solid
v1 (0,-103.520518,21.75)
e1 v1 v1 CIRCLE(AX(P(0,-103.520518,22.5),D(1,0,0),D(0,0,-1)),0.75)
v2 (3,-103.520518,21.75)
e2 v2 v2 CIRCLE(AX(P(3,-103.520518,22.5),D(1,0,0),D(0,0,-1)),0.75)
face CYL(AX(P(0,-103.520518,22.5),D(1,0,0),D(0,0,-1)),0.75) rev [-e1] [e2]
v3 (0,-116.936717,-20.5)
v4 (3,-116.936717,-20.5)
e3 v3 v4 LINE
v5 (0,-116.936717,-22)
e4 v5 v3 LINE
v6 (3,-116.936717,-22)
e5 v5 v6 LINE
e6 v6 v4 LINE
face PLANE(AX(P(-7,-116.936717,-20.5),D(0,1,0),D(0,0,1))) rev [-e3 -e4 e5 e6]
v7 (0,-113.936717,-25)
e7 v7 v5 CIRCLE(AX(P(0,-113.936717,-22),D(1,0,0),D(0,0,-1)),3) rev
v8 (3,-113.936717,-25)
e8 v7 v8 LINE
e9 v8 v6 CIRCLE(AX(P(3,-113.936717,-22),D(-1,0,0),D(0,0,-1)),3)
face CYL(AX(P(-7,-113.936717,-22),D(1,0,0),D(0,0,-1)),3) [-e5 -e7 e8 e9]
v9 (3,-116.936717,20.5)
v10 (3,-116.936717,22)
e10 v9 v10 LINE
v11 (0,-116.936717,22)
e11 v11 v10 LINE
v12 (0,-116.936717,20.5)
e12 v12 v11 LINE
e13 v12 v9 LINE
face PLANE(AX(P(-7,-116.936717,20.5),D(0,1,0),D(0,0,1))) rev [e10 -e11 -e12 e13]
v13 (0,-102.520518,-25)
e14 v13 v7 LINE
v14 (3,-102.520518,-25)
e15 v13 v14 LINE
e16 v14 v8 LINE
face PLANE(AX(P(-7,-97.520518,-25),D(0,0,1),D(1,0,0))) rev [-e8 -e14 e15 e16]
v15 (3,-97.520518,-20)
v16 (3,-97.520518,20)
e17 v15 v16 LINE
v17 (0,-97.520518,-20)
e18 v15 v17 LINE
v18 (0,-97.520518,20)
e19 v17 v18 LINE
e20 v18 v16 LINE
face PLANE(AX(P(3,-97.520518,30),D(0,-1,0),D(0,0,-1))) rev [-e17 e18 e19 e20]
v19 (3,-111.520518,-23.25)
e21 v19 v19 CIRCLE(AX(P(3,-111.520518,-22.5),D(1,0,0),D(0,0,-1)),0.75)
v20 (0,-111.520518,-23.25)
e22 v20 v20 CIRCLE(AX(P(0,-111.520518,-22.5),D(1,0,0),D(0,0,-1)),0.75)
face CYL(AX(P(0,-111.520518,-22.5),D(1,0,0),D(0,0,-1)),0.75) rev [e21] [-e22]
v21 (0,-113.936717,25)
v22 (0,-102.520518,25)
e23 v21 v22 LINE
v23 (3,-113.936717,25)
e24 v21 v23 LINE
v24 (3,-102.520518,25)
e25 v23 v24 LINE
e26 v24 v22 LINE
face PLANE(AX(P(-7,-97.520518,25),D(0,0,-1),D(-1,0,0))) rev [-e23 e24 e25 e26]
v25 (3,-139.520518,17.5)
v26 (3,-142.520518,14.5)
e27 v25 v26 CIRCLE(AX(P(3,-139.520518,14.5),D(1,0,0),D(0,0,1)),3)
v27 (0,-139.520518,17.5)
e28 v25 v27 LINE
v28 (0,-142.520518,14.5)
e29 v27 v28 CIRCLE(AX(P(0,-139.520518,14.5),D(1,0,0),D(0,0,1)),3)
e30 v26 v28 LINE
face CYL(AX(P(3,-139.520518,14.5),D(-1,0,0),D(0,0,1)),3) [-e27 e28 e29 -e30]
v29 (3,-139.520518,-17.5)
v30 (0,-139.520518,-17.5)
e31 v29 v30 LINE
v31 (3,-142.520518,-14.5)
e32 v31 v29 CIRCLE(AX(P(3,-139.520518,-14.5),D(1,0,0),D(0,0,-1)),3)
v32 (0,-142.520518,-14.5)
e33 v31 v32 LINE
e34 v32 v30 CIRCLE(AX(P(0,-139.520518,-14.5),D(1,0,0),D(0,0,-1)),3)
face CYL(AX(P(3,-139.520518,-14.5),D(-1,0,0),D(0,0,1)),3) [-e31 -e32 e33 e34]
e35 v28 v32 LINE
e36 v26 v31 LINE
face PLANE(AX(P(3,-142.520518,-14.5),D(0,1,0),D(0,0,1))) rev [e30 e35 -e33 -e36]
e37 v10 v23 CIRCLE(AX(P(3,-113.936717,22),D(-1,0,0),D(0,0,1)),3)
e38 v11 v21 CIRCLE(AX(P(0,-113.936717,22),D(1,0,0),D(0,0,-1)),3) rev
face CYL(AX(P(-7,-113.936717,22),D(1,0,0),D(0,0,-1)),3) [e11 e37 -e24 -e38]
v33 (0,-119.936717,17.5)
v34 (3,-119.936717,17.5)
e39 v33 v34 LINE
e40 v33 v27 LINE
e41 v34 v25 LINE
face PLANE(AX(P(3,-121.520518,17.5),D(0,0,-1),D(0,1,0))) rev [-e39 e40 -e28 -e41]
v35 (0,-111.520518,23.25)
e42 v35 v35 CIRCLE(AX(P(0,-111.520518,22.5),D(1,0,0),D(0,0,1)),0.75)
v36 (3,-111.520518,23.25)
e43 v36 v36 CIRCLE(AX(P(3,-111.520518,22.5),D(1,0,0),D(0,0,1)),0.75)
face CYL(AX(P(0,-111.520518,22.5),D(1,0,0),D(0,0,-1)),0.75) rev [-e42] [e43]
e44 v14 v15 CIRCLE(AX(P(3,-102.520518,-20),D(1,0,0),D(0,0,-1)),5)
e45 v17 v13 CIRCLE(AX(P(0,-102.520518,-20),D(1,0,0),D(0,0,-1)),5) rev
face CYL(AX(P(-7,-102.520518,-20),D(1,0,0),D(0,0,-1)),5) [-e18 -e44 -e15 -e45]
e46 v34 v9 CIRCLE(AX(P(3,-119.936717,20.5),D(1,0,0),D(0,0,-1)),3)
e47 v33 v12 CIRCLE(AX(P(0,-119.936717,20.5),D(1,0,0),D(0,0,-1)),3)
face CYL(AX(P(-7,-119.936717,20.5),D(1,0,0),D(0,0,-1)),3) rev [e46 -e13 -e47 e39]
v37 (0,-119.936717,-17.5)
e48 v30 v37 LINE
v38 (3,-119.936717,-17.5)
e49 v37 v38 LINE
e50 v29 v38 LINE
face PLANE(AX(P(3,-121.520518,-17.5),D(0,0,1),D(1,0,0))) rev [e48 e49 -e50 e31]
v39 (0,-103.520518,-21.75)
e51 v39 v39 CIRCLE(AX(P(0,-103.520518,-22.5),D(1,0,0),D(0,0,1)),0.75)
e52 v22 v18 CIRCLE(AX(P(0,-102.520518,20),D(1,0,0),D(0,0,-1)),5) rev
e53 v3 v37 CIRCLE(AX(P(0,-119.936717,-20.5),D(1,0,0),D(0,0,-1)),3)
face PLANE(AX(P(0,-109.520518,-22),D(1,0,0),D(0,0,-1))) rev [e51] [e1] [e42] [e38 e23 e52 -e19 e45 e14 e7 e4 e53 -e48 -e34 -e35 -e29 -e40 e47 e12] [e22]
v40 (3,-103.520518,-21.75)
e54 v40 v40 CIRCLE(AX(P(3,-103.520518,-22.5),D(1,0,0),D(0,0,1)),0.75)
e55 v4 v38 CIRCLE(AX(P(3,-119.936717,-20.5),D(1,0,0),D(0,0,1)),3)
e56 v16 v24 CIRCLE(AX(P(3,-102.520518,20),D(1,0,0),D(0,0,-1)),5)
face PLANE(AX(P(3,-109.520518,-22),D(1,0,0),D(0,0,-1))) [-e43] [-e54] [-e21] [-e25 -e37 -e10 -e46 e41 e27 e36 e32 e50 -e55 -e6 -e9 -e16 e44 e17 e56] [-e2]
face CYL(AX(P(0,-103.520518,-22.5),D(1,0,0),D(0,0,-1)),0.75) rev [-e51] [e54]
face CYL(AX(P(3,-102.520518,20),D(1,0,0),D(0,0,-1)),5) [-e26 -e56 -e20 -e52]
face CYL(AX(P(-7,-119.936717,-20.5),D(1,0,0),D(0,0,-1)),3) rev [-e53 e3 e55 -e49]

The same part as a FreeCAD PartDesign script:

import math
import FreeCAD as App
import Part
import Sketcher
from FreeCAD import Vector
Q = App.Units.Quantity


def edges_at(feature, points):
    """Names of the edges that pass closest to the given points."""
    edges = feature.Shape.Edges
    near = lambda p: min(range(len(edges)), key=lambda i: edges[i].distToShape(Part.Vertex(*p))[0])
    return sorted({f"Edge{near(p) + 1}" for p in points})

doc = App.newDocument("Part")
params = doc.addObject("Spreadsheet::Sheet", "Params")
for row, (alias, value) in enumerate([
    ("sketch1_radius", "8 mm"),
    ("sketch1_radius2", "4 mm"),
    ("sketch1_radius3", "3 mm"),
    ("sketch1_width", "12 mm"),
    ("sketch1_width2", "18 mm"),
    ("pad1_length", "3 mm"),
    ("sketch2_diameter", "1.5 mm"),
    ("sketch3_radius", "3 mm"),
    ("sketch3_height", "1.5 mm"),
    ("pocket2_length", "10 mm"),
    ("fillet_radius", "5 mm"),
    ("fillet2_radius", "5 mm"),
], start=1):
    params.set(f"A{row}", alias)
    params.set(f"B{row}", "=" + value)
    params.setAlias(f"B{row}", alias)

body = doc.addObject("PartDesign::Body", "Body")

# Sketch on YZ plane
sketch1 = doc.addObject("Sketcher::SketchObject", "Sketch")
body.addObject(sketch1)
sketch1.AttachmentSupport = (doc.YZ_Plane, [""])
sketch1.MapMode = "FlatFace"
sketch1.addGeometry(Part.LineSegment(Vector(-97.5, 30, 0), Vector(-109.5, 30, 0)), False)
sketch1.addGeometry(Part.ArcOfCircle(Part.Circle(Vector(-109.5, 22, 0), Vector(0, 0, 1), 8), math.radians(90), math.radians(180)), False)
sketch1.addGeometry(Part.LineSegment(Vector(-117.5, 22, 0), Vector(-117.5, 21.5, 0)), False)
sketch1.addGeometry(Part.ArcOfCircle(Part.Circle(Vector(-121.5, 21.5, 0), Vector(0, 0, 1), 4), math.radians(-90), math.radians(0)), False)
sketch1.addGeometry(Part.LineSegment(Vector(-121.5, 17.5, 0), Vector(-139.5, 17.5, 0)), False)
sketch1.addGeometry(Part.ArcOfCircle(Part.Circle(Vector(-139.5, 14.5, 0), Vector(0, 0, 1), 3), math.radians(90), math.radians(180)), False)
sketch1.addGeometry(Part.LineSegment(Vector(-142.5, 14.5, 0), Vector(-142.5, -14.5, 0)), False)
sketch1.addGeometry(Part.ArcOfCircle(Part.Circle(Vector(-139.5, -14.5, 0), Vector(0, 0, 1), 3), math.radians(180), math.radians(270)), False)
sketch1.addGeometry(Part.LineSegment(Vector(-139.5, -17.5, 0), Vector(-121.5, -17.5, 0)), False)
sketch1.addGeometry(Part.ArcOfCircle(Part.Circle(Vector(-121.5, -21.5, 0), Vector(0, 0, 1), 4), math.radians(0), math.radians(90)), False)
sketch1.addGeometry(Part.LineSegment(Vector(-117.5, -21.5, 0), Vector(-117.5, -22, 0)), False)
sketch1.addGeometry(Part.ArcOfCircle(Part.Circle(Vector(-109.5, -22, 0), Vector(0, 0, 1), 8), math.radians(-180), math.radians(-90)), False)
sketch1.addGeometry(Part.LineSegment(Vector(-109.5, -30, 0), Vector(-97.5, -30, 0)), False)
sketch1.addGeometry(Part.LineSegment(Vector(-97.5, -30, 0), Vector(-97.5, 30, 0)), False)
sketch1.addConstraint(Sketcher.Constraint("Tangent", 0, 2, 1, 1))
sketch1.addConstraint(Sketcher.Constraint("Tangent", 1, 2, 2, 1))
sketch1.addConstraint(Sketcher.Constraint("Tangent", 2, 2, 3, 2))
sketch1.addConstraint(Sketcher.Constraint("Tangent", 3, 1, 4, 1))
sketch1.addConstraint(Sketcher.Constraint("Tangent", 4, 2, 5, 1))
sketch1.addConstraint(Sketcher.Constraint("Tangent", 5, 2, 6, 1))
sketch1.addConstraint(Sketcher.Constraint("Tangent", 6, 2, 7, 1))
sketch1.addConstraint(Sketcher.Constraint("Tangent", 7, 2, 8, 1))
sketch1.addConstraint(Sketcher.Constraint("Tangent", 8, 2, 9, 2))
sketch1.addConstraint(Sketcher.Constraint("Tangent", 9, 1, 10, 1))
sketch1.addConstraint(Sketcher.Constraint("Tangent", 10, 2, 11, 1))
sketch1.addConstraint(Sketcher.Constraint("Tangent", 11, 2, 12, 1))
sketch1.addConstraint(Sketcher.Constraint("Coincident", 12, 2, 13, 1))
sketch1.addConstraint(Sketcher.Constraint("Coincident", 13, 2, 0, 1))
sketch1.addConstraint(Sketcher.Constraint("Horizontal", 0))
sketch1.addConstraint(Sketcher.Constraint("Vertical", 2))
sketch1.addConstraint(Sketcher.Constraint("Horizontal", 4))
sketch1.addConstraint(Sketcher.Constraint("Vertical", 6))
sketch1.addConstraint(Sketcher.Constraint("Horizontal", 8))
sketch1.addConstraint(Sketcher.Constraint("Vertical", 10))
sketch1.addConstraint(Sketcher.Constraint("Horizontal", 12))
sketch1.addConstraint(Sketcher.Constraint("Vertical", 13))
sketch1.addConstraint(Sketcher.Constraint("Equal", 5, 7))
sketch1.addConstraint(Sketcher.Constraint("Equal", 3, 9))
sketch1.addConstraint(Sketcher.Constraint("Equal", 1, 11))
sketch1.addConstraint(Sketcher.Constraint("Symmetric", 3, 3, 9, 3, -1))
sketch1.addConstraint(Sketcher.Constraint("Equal", 2, 10))
sketch1.addConstraint(Sketcher.Constraint("Radius", 1, Q("8 mm")))
sketch1.addConstraint(Sketcher.Constraint("Radius", 3, Q("4 mm")))
sketch1.addConstraint(Sketcher.Constraint("Radius", 5, Q("3 mm")))
sketch1.addConstraint(Sketcher.Constraint("DistanceX", 0, 2, 0, 1, Q("12 mm")))
sketch1.addConstraint(Sketcher.Constraint("DistanceX", 4, 2, 4, 1, Q("18 mm")))
sketch1.addConstraint(Sketcher.Constraint("DistanceY", 6, 2, 6, 1, Q("29 mm")))
sketch1.addConstraint(Sketcher.Constraint("DistanceY", 13, 1, 13, 2, Q("60 mm")))
sketch1.addConstraint(Sketcher.Constraint("DistanceX", 1, 3, -1, 1, Q("109.520518 mm")))
sketch1.setExpression("Constraints[27]", "Params.sketch1_radius")
sketch1.setExpression("Constraints[28]", "Params.sketch1_radius2")
sketch1.setExpression("Constraints[29]", "Params.sketch1_radius3")
sketch1.setExpression("Constraints[30]", "Params.sketch1_width")
sketch1.setExpression("Constraints[31]", "Params.sketch1_width2")
pad1 = doc.addObject("PartDesign::Pad", "Pad")
body.addObject(pad1)
pad1.Profile = sketch1
pad1.setExpression("Length", "Params.pad1_length")

# Sketch on YZ plane
sketch2 = doc.addObject("Sketcher::SketchObject", "Sketch001")
body.addObject(sketch2)
sketch2.AttachmentSupport = (doc.YZ_Plane, [""])
sketch2.MapMode = "FlatFace"
sketch2.AttachmentOffset = App.Placement(Vector(0, 0, 3), App.Rotation())
sketch2.addGeometry(Part.Circle(Vector(-103.5, 22.5, 0), Vector(0, 0, 1), 0.8), False)
sketch2.addGeometry(Part.Circle(Vector(-111.5, 22.5, 0), Vector(0, 0, 1), 0.8), False)
sketch2.addGeometry(Part.Circle(Vector(-111.5, -22.5, 0), Vector(0, 0, 1), 0.8), False)
sketch2.addGeometry(Part.Circle(Vector(-103.5, -22.5, 0), Vector(0, 0, 1), 0.8), False)
sketch2.addConstraint(Sketcher.Constraint("Equal", 0, 1))
sketch2.addConstraint(Sketcher.Constraint("Equal", 1, 2))
sketch2.addConstraint(Sketcher.Constraint("Equal", 2, 3))
sketch2.addConstraint(Sketcher.Constraint("Symmetric", 1, 3, 2, 3, -1))
sketch2.addConstraint(Sketcher.Constraint("Symmetric", 0, 3, 3, 3, -1))
sketch2.addConstraint(Sketcher.Constraint("Horizontal", 0, 3, 1, 3))
sketch2.addConstraint(Sketcher.Constraint("Diameter", 0, Q("1.5 mm")))
sketch2.addConstraint(Sketcher.Constraint("DistanceX", 1, 3, 0, 3, Q("8 mm")))
sketch2.addConstraint(Sketcher.Constraint("DistanceY", 2, 3, 1, 3, Q("45 mm")))
sketch2.addConstraint(Sketcher.Constraint("DistanceX", 0, 3, -1, 1, Q("103.520518 mm")))
sketch2.setExpression("Constraints[6]", "Params.sketch2_diameter")
pocket1 = doc.addObject("PartDesign::Pocket", "Pocket")
body.addObject(pocket1)
pocket1.Profile = sketch2
pocket1.Type = "ThroughAll"

# Sketch on YZ plane
sketch3 = doc.addObject("Sketcher::SketchObject", "Sketch002")
body.addObject(sketch3)
sketch3.AttachmentSupport = (doc.YZ_Plane, [""])
sketch3.MapMode = "FlatFace"
sketch3.AttachmentOffset = App.Placement(Vector(0, 0, 3), App.Rotation())
sketch3.addGeometry(Part.LineSegment(Vector(-113.9, 25, 0), Vector(-97.5, 25, 0)), False)
sketch3.addGeometry(Part.LineSegment(Vector(-97.5, 25, 0), Vector(-97.5, 42.9, 0)), False)
sketch3.addGeometry(Part.LineSegment(Vector(-97.5, 42.9, 0), Vector(-122.5, 42.9, 0)), False)
sketch3.addGeometry(Part.LineSegment(Vector(-122.5, 42.9, 0), Vector(-122.5, 17.5, 0)), False)
sketch3.addGeometry(Part.LineSegment(Vector(-122.5, 17.5, 0), Vector(-119.9, 17.5, 0)), False)
sketch3.addGeometry(Part.ArcOfCircle(Part.Circle(Vector(-119.9, 20.5, 0), Vector(0, 0, 1), 3), math.radians(-90), math.radians(0)), False)
sketch3.addGeometry(Part.LineSegment(Vector(-116.9, 20.5, 0), Vector(-116.9, 22, 0)), False)
sketch3.addGeometry(Part.ArcOfCircle(Part.Circle(Vector(-113.9, 22, 0), Vector(0, 0, 1), 3), math.radians(90), math.radians(180)), False)
sketch3.addGeometry(Part.LineSegment(Vector(-116.9, -22, 0), Vector(-116.9, -20.5, 0)), False)
sketch3.addGeometry(Part.ArcOfCircle(Part.Circle(Vector(-119.9, -20.5, 0), Vector(0, 0, 1), 3), math.radians(0), math.radians(90)), False)
sketch3.addGeometry(Part.LineSegment(Vector(-119.9, -17.5, 0), Vector(-122.5, -17.5, 0)), False)
sketch3.addGeometry(Part.LineSegment(Vector(-122.5, -17.5, 0), Vector(-122.5, -42.9, 0)), False)
sketch3.addGeometry(Part.LineSegment(Vector(-122.5, -42.9, 0), Vector(-97.5, -42.9, 0)), False)
sketch3.addGeometry(Part.LineSegment(Vector(-97.5, -42.9, 0), Vector(-97.5, -25, 0)), False)
sketch3.addGeometry(Part.LineSegment(Vector(-97.5, -25, 0), Vector(-113.9, -25, 0)), False)
sketch3.addGeometry(Part.ArcOfCircle(Part.Circle(Vector(-113.9, -22, 0), Vector(0, 0, 1), 3), math.radians(180), math.radians(270)), False)
sketch3.addConstraint(Sketcher.Constraint("Coincident", 0, 2, 1, 1))
sketch3.addConstraint(Sketcher.Constraint("Coincident", 1, 2, 2, 1))
sketch3.addConstraint(Sketcher.Constraint("Coincident", 2, 2, 3, 1))
sketch3.addConstraint(Sketcher.Constraint("Coincident", 3, 2, 4, 1))
sketch3.addConstraint(Sketcher.Constraint("Tangent", 4, 2, 5, 1))
sketch3.addConstraint(Sketcher.Constraint("Tangent", 5, 2, 6, 1))
sketch3.addConstraint(Sketcher.Constraint("Tangent", 6, 2, 7, 2))
sketch3.addConstraint(Sketcher.Constraint("Tangent", 7, 1, 0, 1))
sketch3.addConstraint(Sketcher.Constraint("Tangent", 8, 2, 9, 1))
sketch3.addConstraint(Sketcher.Constraint("Tangent", 9, 2, 10, 1))
sketch3.addConstraint(Sketcher.Constraint("Coincident", 10, 2, 11, 1))
sketch3.addConstraint(Sketcher.Constraint("Coincident", 11, 2, 12, 1))
sketch3.addConstraint(Sketcher.Constraint("Coincident", 12, 2, 13, 1))
sketch3.addConstraint(Sketcher.Constraint("Coincident", 13, 2, 14, 1))
sketch3.addConstraint(Sketcher.Constraint("Tangent", 14, 2, 15, 2))
sketch3.addConstraint(Sketcher.Constraint("Tangent", 15, 1, 8, 1))
sketch3.addConstraint(Sketcher.Constraint("Horizontal", 0))
sketch3.addConstraint(Sketcher.Constraint("Vertical", 1))
sketch3.addConstraint(Sketcher.Constraint("Horizontal", 2))
sketch3.addConstraint(Sketcher.Constraint("Vertical", 3))
sketch3.addConstraint(Sketcher.Constraint("Horizontal", 4))
sketch3.addConstraint(Sketcher.Constraint("Vertical", 6))
sketch3.addConstraint(Sketcher.Constraint("Vertical", 8))
sketch3.addConstraint(Sketcher.Constraint("Horizontal", 10))
sketch3.addConstraint(Sketcher.Constraint("Vertical", 11))
sketch3.addConstraint(Sketcher.Constraint("Horizontal", 12))
sketch3.addConstraint(Sketcher.Constraint("Vertical", 13))
sketch3.addConstraint(Sketcher.Constraint("Horizontal", 14))
sketch3.addConstraint(Sketcher.Constraint("Equal", 5, 7))
sketch3.addConstraint(Sketcher.Constraint("Equal", 7, 9))
sketch3.addConstraint(Sketcher.Constraint("Equal", 9, 15))
sketch3.addConstraint(Sketcher.Constraint("Symmetric", 5, 3, 9, 3, -1))
sketch3.addConstraint(Sketcher.Constraint("Symmetric", 2, 2, 11, 2, -1))
sketch3.addConstraint(Sketcher.Constraint("Symmetric", 0, 2, 13, 2, -1))
sketch3.addConstraint(Sketcher.Constraint("Radius", 5, Q("3 mm")))
sketch3.addConstraint(Sketcher.Constraint("DistanceY", 6, 1, 6, 2, Q("1.5 mm")))
sketch3.addConstraint(Sketcher.Constraint("DistanceY", -1, 1, 7, 3, Q("22 mm")))
sketch3.addConstraint(Sketcher.Constraint("DistanceX", 0, 1, 0, 2, Q("16.416198 mm")))
sketch3.addConstraint(Sketcher.Constraint("DistanceX", 2, 2, 2, 1, Q("24.932401 mm")))
sketch3.addConstraint(Sketcher.Constraint("DistanceY", 1, 1, 1, 2, Q("17.892449 mm")))
sketch3.addConstraint(Sketcher.Constraint("DistanceX", 0, 2, -1, 1, Q("97.520518 mm")))
sketch3.setExpression("Constraints[34]", "Params.sketch3_radius")
sketch3.setExpression("Constraints[35]", "Params.sketch3_height")
pocket2 = doc.addObject("PartDesign::Pocket", "Pocket001")
body.addObject(pocket2)
pocket2.Profile = sketch3
pocket2.setExpression("Length", "Params.pocket2_length")
doc.recompute()

fillet = doc.addObject("PartDesign::Fillet", "Fillet")
body.addObject(fillet)
fillet.Base = (pocket2, edges_at(pocket2, [(1.5, -97.521, 25)]))
fillet.setExpression("Radius", "Params.fillet_radius")
doc.recompute()

fillet2 = doc.addObject("PartDesign::Fillet", "Fillet001")
body.addObject(fillet2)
fillet2.Base = (fillet, edges_at(fillet, [(1.5, -97.521, -25)]))
fillet2.setExpression("Radius", "Params.fillet2_radius")

doc.recompute()
